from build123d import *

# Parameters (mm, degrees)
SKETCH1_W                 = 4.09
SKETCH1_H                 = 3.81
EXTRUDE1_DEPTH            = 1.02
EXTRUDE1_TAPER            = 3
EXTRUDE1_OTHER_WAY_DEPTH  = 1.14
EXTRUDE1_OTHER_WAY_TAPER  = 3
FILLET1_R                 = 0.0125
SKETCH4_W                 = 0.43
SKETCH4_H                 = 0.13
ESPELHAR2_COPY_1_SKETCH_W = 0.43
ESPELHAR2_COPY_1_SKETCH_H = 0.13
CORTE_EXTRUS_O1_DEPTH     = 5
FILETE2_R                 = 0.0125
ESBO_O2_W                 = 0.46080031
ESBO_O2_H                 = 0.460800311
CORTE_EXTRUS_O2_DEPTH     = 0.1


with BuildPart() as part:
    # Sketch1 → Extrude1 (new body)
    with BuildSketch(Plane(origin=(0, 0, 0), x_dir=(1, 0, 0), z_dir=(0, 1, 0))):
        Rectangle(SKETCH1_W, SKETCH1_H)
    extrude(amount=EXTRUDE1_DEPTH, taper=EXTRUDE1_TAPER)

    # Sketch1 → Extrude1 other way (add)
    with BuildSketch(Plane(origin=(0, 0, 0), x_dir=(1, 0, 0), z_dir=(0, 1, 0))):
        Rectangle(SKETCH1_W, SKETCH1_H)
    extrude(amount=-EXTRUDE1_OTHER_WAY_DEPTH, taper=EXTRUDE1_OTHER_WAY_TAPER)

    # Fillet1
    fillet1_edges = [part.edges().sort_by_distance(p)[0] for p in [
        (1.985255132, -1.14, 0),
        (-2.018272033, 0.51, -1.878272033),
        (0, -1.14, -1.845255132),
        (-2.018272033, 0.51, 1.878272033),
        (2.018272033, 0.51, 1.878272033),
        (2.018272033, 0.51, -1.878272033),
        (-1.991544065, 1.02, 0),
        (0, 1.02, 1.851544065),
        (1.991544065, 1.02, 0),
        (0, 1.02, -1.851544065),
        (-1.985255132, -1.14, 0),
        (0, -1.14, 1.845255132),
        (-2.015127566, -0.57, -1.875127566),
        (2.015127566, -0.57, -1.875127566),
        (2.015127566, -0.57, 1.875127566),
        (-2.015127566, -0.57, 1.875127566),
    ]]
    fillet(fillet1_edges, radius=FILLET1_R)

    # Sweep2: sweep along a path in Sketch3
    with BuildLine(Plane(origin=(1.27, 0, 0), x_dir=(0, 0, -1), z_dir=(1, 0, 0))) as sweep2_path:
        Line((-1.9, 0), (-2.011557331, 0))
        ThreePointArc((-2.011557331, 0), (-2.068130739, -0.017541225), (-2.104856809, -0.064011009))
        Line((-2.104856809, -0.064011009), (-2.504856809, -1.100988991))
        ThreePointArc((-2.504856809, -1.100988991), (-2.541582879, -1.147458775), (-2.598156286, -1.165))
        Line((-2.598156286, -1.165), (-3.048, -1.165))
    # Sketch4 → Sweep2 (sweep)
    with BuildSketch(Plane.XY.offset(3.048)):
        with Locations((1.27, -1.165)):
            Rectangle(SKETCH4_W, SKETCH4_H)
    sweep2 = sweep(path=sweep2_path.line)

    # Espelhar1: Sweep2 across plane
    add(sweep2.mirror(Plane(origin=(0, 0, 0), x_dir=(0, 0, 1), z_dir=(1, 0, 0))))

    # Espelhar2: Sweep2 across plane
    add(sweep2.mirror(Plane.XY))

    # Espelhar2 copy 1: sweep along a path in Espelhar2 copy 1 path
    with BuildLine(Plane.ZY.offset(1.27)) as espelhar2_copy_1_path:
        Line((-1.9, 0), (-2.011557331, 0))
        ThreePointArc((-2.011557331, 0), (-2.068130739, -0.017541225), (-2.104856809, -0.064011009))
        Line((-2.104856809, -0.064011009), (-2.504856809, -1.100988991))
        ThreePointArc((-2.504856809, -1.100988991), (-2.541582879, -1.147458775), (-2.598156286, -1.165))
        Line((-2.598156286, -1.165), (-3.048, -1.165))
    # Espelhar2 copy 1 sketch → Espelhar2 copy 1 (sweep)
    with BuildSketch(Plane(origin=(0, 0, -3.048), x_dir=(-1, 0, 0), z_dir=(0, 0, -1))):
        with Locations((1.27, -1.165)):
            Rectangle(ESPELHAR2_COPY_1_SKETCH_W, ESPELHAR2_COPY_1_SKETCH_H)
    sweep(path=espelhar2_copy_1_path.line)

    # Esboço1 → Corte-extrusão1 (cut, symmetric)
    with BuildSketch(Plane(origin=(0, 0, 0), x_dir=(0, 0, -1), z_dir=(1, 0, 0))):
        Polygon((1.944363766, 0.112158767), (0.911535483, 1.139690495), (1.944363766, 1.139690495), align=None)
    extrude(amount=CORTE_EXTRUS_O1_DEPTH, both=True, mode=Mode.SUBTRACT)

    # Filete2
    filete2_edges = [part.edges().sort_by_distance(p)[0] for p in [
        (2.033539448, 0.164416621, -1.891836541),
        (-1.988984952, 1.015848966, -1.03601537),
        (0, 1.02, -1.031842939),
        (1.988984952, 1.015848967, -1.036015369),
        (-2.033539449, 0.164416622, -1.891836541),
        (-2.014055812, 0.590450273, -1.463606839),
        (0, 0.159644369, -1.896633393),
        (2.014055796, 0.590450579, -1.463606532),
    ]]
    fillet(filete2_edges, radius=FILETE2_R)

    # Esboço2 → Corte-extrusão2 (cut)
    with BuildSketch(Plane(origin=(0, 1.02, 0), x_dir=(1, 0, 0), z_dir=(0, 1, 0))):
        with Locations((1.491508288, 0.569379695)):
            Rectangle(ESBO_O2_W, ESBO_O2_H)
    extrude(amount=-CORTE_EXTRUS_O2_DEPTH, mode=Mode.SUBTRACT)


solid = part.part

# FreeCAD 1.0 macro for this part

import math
import FreeCAD as App
import Part
import Sketcher
from FreeCAD import Vector
Q = App.Units.Quantity


def edges_at(feature, points):
    """Names of the edges that pass closest to the given points."""
    edges = feature.Shape.Edges
    near = lambda p: min(range(len(edges)), key=lambda i: edges[i].distToShape(Part.Vertex(*p))[0])
    return sorted({f"Edge{near(p) + 1}" for p in points})

doc = App.newDocument("Part")
body = doc.addObject("PartDesign::Body", "Body")

# Sketch on XZ plane
sketch1 = body.newObject("Sketcher::SketchObject", "Sketch")
sketch1.AttachmentSupport = (doc.getObject("XZ_Plane"), [""])
sketch1.MapMode = "FlatFace"
sketch1.addGeometry(Part.LineSegment(Vector(-2.045, -1.905, 0), Vector(-2.045, 1.905, 0)), False)
sketch1.addGeometry(Part.LineSegment(Vector(-2.045, 1.905, 0), Vector(2.045, 1.905, 0)), False)
sketch1.addGeometry(Part.LineSegment(Vector(2.045, 1.905, 0), Vector(2.045, -1.905, 0)), False)
sketch1.addGeometry(Part.LineSegment(Vector(2.045, -1.905, 0), Vector(-2.045, -1.905, 0)), False)
sketch1.addConstraint(Sketcher.Constraint("Coincident", 0, 2, 1, 1))
sketch1.addConstraint(Sketcher.Constraint("Coincident", 1, 2, 2, 1))
sketch1.addConstraint(Sketcher.Constraint("Coincident", 2, 2, 3, 1))
sketch1.addConstraint(Sketcher.Constraint("Coincident", 3, 2, 0, 1))
sketch1.addConstraint(Sketcher.Constraint("Vertical", 0))
sketch1.addConstraint(Sketcher.Constraint("Horizontal", 1))
sketch1.addConstraint(Sketcher.Constraint("Vertical", 2))
sketch1.addConstraint(Sketcher.Constraint("Horizontal", 3))
sketch1.addConstraint(Sketcher.Constraint("Symmetric", 0, 2, 2, 2, -1, 1))
sketch1.addConstraint(Sketcher.Constraint("DistanceX", 1, 1, 1, 2, Q("4.09 mm")))
sketch1.addConstraint(Sketcher.Constraint("DistanceY", 0, 1, 0, 2, Q("3.81 mm")))
pad1 = body.newObject("PartDesign::Pad", "Pad")
pad1.Profile = sketch1
pad1.Length = 1.02
pad1.Reversed = True
pad1.TaperAngle = -3

# Sketch on XZ plane
sketch2 = body.newObject("Sketcher::SketchObject", "Sketch001")
sketch2.AttachmentSupport = (doc.getObject("XZ_Plane"), [""])
sketch2.MapMode = "FlatFace"
sketch2.addGeometry(Part.LineSegment(Vector(-2.045, -1.905, 0), Vector(-2.045, 1.905, 0)), False)
sketch2.addGeometry(Part.LineSegment(Vector(-2.045, 1.905, 0), Vector(2.045, 1.905, 0)), False)
sketch2.addGeometry(Part.LineSegment(Vector(2.045, 1.905, 0), Vector(2.045, -1.905, 0)), False)
sketch2.addGeometry(Part.LineSegment(Vector(2.045, -1.905, 0), Vector(-2.045, -1.905, 0)), False)
sketch2.addConstraint(Sketcher.Constraint("Coincident", 0, 2, 1, 1))
sketch2.addConstraint(Sketcher.Constraint("Coincident", 1, 2, 2, 1))
sketch2.addConstraint(Sketcher.Constraint("Coincident", 2, 2, 3, 1))
sketch2.addConstraint(Sketcher.Constraint("Coincident", 3, 2, 0, 1))
sketch2.addConstraint(Sketcher.Constraint("Vertical", 0))
sketch2.addConstraint(Sketcher.Constraint("Horizontal", 1))
sketch2.addConstraint(Sketcher.Constraint("Vertical", 2))
sketch2.addConstraint(Sketcher.Constraint("Horizontal", 3))
sketch2.addConstraint(Sketcher.Constraint("Symmetric", 0, 2, 2, 2, -1, 1))
sketch2.addConstraint(Sketcher.Constraint("DistanceX", 1, 1, 1, 2, Q("4.09 mm")))
sketch2.addConstraint(Sketcher.Constraint("DistanceY", 0, 1, 0, 2, Q("3.81 mm")))
pad2 = body.newObject("PartDesign::Pad", "Pad001")
pad2.Profile = sketch2
pad2.Length = 1.14
pad2.TaperAngle = -3
doc.recompute()

fillet = body.newObject("PartDesign::Fillet", "Fillet")
fillet.Base = (pad2, ["Edge1"])
fillet.UseAllEdges = True
fillet.Radius = 0.0125

# Sketch on XY plane
sketch3 = body.newObject("Sketcher::SketchObject", "Sketch002")
sketch3.AttachmentSupport = (doc.getObject("XY_Plane"), [""])
sketch3.MapMode = "FlatFace"
sketch3.AttachmentOffset = App.Placement(Vector(0, 0, 3.048), App.Rotation())
sketch3.addGeometry(Part.LineSegment(Vector(1.055, -1.1, 0), Vector(1.055, -1.23, 0)), False)
sketch3.addGeometry(Part.LineSegment(Vector(1.055, -1.23, 0), Vector(1.485, -1.23, 0)), False)
sketch3.addGeometry(Part.LineSegment(Vector(1.485, -1.23, 0), Vector(1.485, -1.1, 0)), False)
sketch3.addGeometry(Part.LineSegment(Vector(1.485, -1.1, 0), Vector(1.055, -1.1, 0)), False)
sketch3.addConstraint(Sketcher.Constraint("Coincident", 0, 2, 1, 1))
sketch3.addConstraint(Sketcher.Constraint("Coincident", 1, 2, 2, 1))
sketch3.addConstraint(Sketcher.Constraint("Coincident", 2, 2, 3, 1))
sketch3.addConstraint(Sketcher.Constraint("Coincident", 3, 2, 0, 1))
sketch3.addConstraint(Sketcher.Constraint("Vertical", 0))
sketch3.addConstraint(Sketcher.Constraint("Horizontal", 1))
sketch3.addConstraint(Sketcher.Constraint("Vertical", 2))
sketch3.addConstraint(Sketcher.Constraint("Horizontal", 3))
sketch3.addConstraint(Sketcher.Constraint("DistanceX", 1, 1, 1, 2, Q("0.43 mm")))
sketch3.addConstraint(Sketcher.Constraint("DistanceY", 0, 2, 0, 1, Q("0.13 mm")))
sketch3.addConstraint(Sketcher.Constraint("DistanceY", 2, 2, -1, 1, Q("1.1 mm")))
sketch3.addConstraint(Sketcher.Constraint("DistanceX", -1, 1, 0, 2, Q("1.055 mm")))

# Sketch on YZ plane
sketch4 = body.newObject("Sketcher::SketchObject", "Sketch003")
sketch4.AttachmentSupport = (doc.getObject("YZ_Plane"), [""])
sketch4.MapMode = "FlatFace"
sketch4.AttachmentOffset = App.Placement(Vector(0, 0, 1.27), App.Rotation())
sketch4.addGeometry(Part.LineSegment(Vector(0, 1.9, 0), Vector(0, 2.011557, 0)), False)
sketch4.addGeometry(Part.ArcOfCircle(Part.Circle(Vector(-0.1, 2.011557, 0), Vector(0, 0, 1), 0.1), math.radians(-0.000001), math.radians(68.906565)), False)
sketch4.addGeometry(Part.LineSegment(Vector(-0.064011, 2.104857, 0), Vector(-1.100989, 2.504857, 0)), False)
sketch4.addGeometry(Part.ArcOfCircle(Part.Circle(Vector(-1.065, 2.598156, 0), Vector(0, 0, 1), 0.1), math.radians(180), math.radians(248.906565)), False)
sketch4.addGeometry(Part.LineSegment(Vector(-1.165, 2.598156, 0), Vector(-1.165, 3.048, 0)), False)
sketch4.addConstraint(Sketcher.Constraint("Tangent", 0, 2, 1, 1))
sketch4.addConstraint(Sketcher.Constraint("Tangent", 1, 2, 2, 1))
sketch4.addConstraint(Sketcher.Constraint("Tangent", 2, 2, 3, 2))
sketch4.addConstraint(Sketcher.Constraint("Tangent", 3, 1, 4, 1))
sketch4.addConstraint(Sketcher.Constraint("Vertical", 0))
sketch4.addConstraint(Sketcher.Constraint("Vertical", 4))
sketch4.addConstraint(Sketcher.Constraint("Equal", 1, 3))
sketch4.addConstraint(Sketcher.Constraint("PointOnObject", 0, 1, -2))
sketch4.addConstraint(Sketcher.Constraint("Radius", 1, Q("0.1 mm")))
sketch4.addConstraint(Sketcher.Constraint("DistanceY", -1, 1, 0, 1, Q("1.9 mm")))
sketch4.addConstraint(Sketcher.Constraint("DistanceY", 1, 2, 2, 2, Q("0.4 mm")))
sketch4.addConstraint(Sketcher.Constraint("DistanceX", 3, 3, -1, 1, Q("1.065 mm")))
sketch4.addConstraint(Sketcher.Constraint("DistanceY", -1, 1, 4, 2, Q("3.048 mm")))
sketch4.addConstraint(Sketcher.Constraint("DistanceY", 0, 1, 0, 2, Q("0.111557 mm")))
doc.recompute()

additivepipe = body.newObject("PartDesign::AdditivePipe", "AdditivePipe")
additivepipe.Profile = sketch3
additivepipe.Spine = (sketch4, ["Edge1", "Edge2", "Edge3", "Edge4", "Edge5"])
doc.recompute()

mirrored = body.newObject("PartDesign::Mirrored", "Mirrored")
mirrored.Originals = [additivepipe]
mirrored.MirrorPlane = (doc.getObject("YZ_Plane"), [""])
body.Tip = mirrored
doc.recompute()

mirrored2 = body.newObject("PartDesign::Mirrored", "Mirrored001")
mirrored2.Originals = [additivepipe]
mirrored2.MirrorPlane = (doc.getObject("XY_Plane"), [""])
body.Tip = mirrored2

# Sketch on XY plane
sketch5 = body.newObject("Sketcher::SketchObject", "Sketch004")
sketch5.AttachmentSupport = (doc.getObject("XY_Plane"), [""])
sketch5.MapMode = "FlatFace"
sketch5.AttachmentOffset = App.Placement(Vector(0, 0, -3.048), App.Rotation())
sketch5.addGeometry(Part.LineSegment(Vector(-1.055, -1.1, 0), Vector(-1.055, -1.23, 0)), False)
sketch5.addGeometry(Part.LineSegment(Vector(-1.055, -1.23, 0), Vector(-1.485, -1.23, 0)), False)
sketch5.addGeometry(Part.LineSegment(Vector(-1.485, -1.23, 0), Vector(-1.485, -1.1, 0)), False)
sketch5.addGeometry(Part.LineSegment(Vector(-1.485, -1.1, 0), Vector(-1.055, -1.1, 0)), False)
sketch5.addConstraint(Sketcher.Constraint("Coincident", 0, 2, 1, 1))
sketch5.addConstraint(Sketcher.Constraint("Coincident", 1, 2, 2, 1))
sketch5.addConstraint(Sketcher.Constraint("Coincident", 2, 2, 3, 1))
sketch5.addConstraint(Sketcher.Constraint("Coincident", 3, 2, 0, 1))
sketch5.addConstraint(Sketcher.Constraint("Vertical", 0))
sketch5.addConstraint(Sketcher.Constraint("Horizontal", 1))
sketch5.addConstraint(Sketcher.Constraint("Vertical", 2))
sketch5.addConstraint(Sketcher.Constraint("Horizontal", 3))
sketch5.addConstraint(Sketcher.Constraint("DistanceX", 1, 2, 1, 1, Q("0.43 mm")))
sketch5.addConstraint(Sketcher.Constraint("DistanceY", 0, 2, 0, 1, Q("0.13 mm")))
sketch5.addConstraint(Sketcher.Constraint("DistanceY", 2, 2, -1, 1, Q("1.1 mm")))
sketch5.addConstraint(Sketcher.Constraint("DistanceX", 0, 2, -1, 1, Q("1.055 mm")))

# Sketch on YZ plane
sketch6 = body.newObject("Sketcher::SketchObject", "Sketch005")
sketch6.AttachmentSupport = (doc.getObject("YZ_Plane"), [""])
sketch6.MapMode = "FlatFace"
sketch6.AttachmentOffset = App.Placement(Vector(0, 0, -1.27), App.Rotation())
sketch6.addGeometry(Part.LineSegment(Vector(0, -1.9, 0), Vector(0, -2.011557, 0)), False)
sketch6.addGeometry(Part.ArcOfCircle(Part.Circle(Vector(-0.1, -2.011557, 0), Vector(0, 0, 1), 0.1), math.radians(-68.906565), math.radians(0.000001)), False)
sketch6.addGeometry(Part.LineSegment(Vector(-0.064011, -2.104857, 0), Vector(-1.100989, -2.504857, 0)), False)
sketch6.addGeometry(Part.ArcOfCircle(Part.Circle(Vector(-1.065, -2.598156, 0), Vector(0, 0, 1), 0.1), math.radians(111.093435), math.radians(180)), False)
sketch6.addGeometry(Part.LineSegment(Vector(-1.165, -2.598156, 0), Vector(-1.165, -3.048, 0)), False)
sketch6.addConstraint(Sketcher.Constraint("Tangent", 0, 2, 1, 2))
sketch6.addConstraint(Sketcher.Constraint("Tangent", 1, 1, 2, 1))
sketch6.addConstraint(Sketcher.Constraint("Tangent", 2, 2, 3, 1))
sketch6.addConstraint(Sketcher.Constraint("Tangent", 3, 2, 4, 1))
sketch6.addConstraint(Sketcher.Constraint("Vertical", 0))
sketch6.addConstraint(Sketcher.Constraint("Vertical", 4))
sketch6.addConstraint(Sketcher.Constraint("Equal", 1, 3))
sketch6.addConstraint(Sketcher.Constraint("PointOnObject", 0, 1, -2))
sketch6.addConstraint(Sketcher.Constraint("Radius", 1, Q("0.1 mm")))
sketch6.addConstraint(Sketcher.Constraint("DistanceY", 0, 1, -1, 1, Q("1.9 mm")))
sketch6.addConstraint(Sketcher.Constraint("DistanceY", 2, 2, 1, 1, Q("0.4 mm")))
sketch6.addConstraint(Sketcher.Constraint("DistanceX", 3, 3, -1, 1, Q("1.065 mm")))
sketch6.addConstraint(Sketcher.Constraint("DistanceY", 4, 2, -1, 1, Q("3.048 mm")))
sketch6.addConstraint(Sketcher.Constraint("DistanceY", 0, 2, 0, 1, Q("0.111557 mm")))
doc.recompute()

additivepipe2 = body.newObject("PartDesign::AdditivePipe", "AdditivePipe001")
additivepipe2.Profile = sketch5
additivepipe2.Spine = (sketch6, ["Edge1", "Edge2", "Edge3", "Edge4", "Edge5"])

# Sketch on YZ plane
sketch7 = body.newObject("Sketcher::SketchObject", "Sketch006")
sketch7.AttachmentSupport = (doc.getObject("YZ_Plane"), [""])
sketch7.MapMode = "FlatFace"
sketch7.addGeometry(Part.LineSegment(Vector(1.13969, -0.911535, 0), Vector(0.112159, -1.944364, 0)), False)
sketch7.addGeometry(Part.LineSegment(Vector(0.112159, -1.944364, 0), Vector(1.13969, -1.944364, 0)), False)
sketch7.addGeometry(Part.LineSegment(Vector(1.13969, -1.944364, 0), Vector(1.13969, -0.911535, 0)), False)
sketch7.addConstraint(Sketcher.Constraint("Coincident", 0, 2, 1, 1))
sketch7.addConstraint(Sketcher.Constraint("Coincident", 1, 2, 2, 1))
sketch7.addConstraint(Sketcher.Constraint("Coincident", 2, 2, 0, 1))
sketch7.addConstraint(Sketcher.Constraint("Horizontal", 1))
sketch7.addConstraint(Sketcher.Constraint("Vertical", 2))
sketch7.addConstraint(Sketcher.Constraint("Distance", 0, Q("1.456899 mm")))
sketch7.addConstraint(Sketcher.Constraint("DistanceX", 1, 1, 1, 2, Q("1.027532 mm")))
sketch7.addConstraint(Sketcher.Constraint("DistanceX", -1, 1, 0, 2, Q("0.112159 mm")))
sketch7.addConstraint(Sketcher.Constraint("DistanceY", 0, 2, -1, 1, Q("1.944364 mm")))
pocket1 = body.newObject("PartDesign::Pocket", "Pocket")
pocket1.Profile = sketch7
pocket1.Length = 10
pocket1.Midplane = True
doc.recompute()

fillet2 = body.newObject("PartDesign::Fillet", "Fillet001")
fillet2.Base = (pocket1, edges_at(pocket1, [
    (2.034, 0.164, -1.892),
    (-1.989, 1.016, -1.036),
    (0, 1.02, -1.032),
    (1.989, 1.016, -1.036),
    (-2.034, 0.164, -1.892),
    (-2.014, 0.59, -1.464),
    (0, 0.16, -1.897),
    (2.014, 0.59, -1.464),
]))
fillet2.Radius = 0.0125

# Sketch on XZ plane
sketch8 = body.newObject("Sketcher::SketchObject", "Sketch007")
sketch8.AttachmentSupport = (doc.getObject("XZ_Plane"), [""])
sketch8.MapMode = "FlatFace"
sketch8.AttachmentOffset = App.Placement(Vector(0, 0, -1.02), App.Rotation())
sketch8.addGeometry(Part.LineSegment(Vector(1.261108, -0.79978, 0), Vector(1.261108, -0.33898, 0)), False)
sketch8.addGeometry(Part.LineSegment(Vector(1.261108, -0.33898, 0), Vector(1.721908, -0.33898, 0)), False)
sketch8.addGeometry(Part.LineSegment(Vector(1.721908, -0.33898, 0), Vector(1.721908, -0.79978, 0)), False)
sketch8.addGeometry(Part.LineSegment(Vector(1.721908, -0.79978, 0), Vector(1.261108, -0.79978, 0)), False)
sketch8.addConstraint(Sketcher.Constraint("Coincident", 0, 2, 1, 1))
sketch8.addConstraint(Sketcher.Constraint("Coincident", 1, 2, 2, 1))
sketch8.addConstraint(Sketcher.Constraint("Coincident", 2, 2, 3, 1))
sketch8.addConstraint(Sketcher.Constraint("Coincident", 3, 2, 0, 1))
sketch8.addConstraint(Sketcher.Constraint("Vertical", 0))
sketch8.addConstraint(Sketcher.Constraint("Horizontal", 1))
sketch8.addConstraint(Sketcher.Constraint("Vertical", 2))
sketch8.addConstraint(Sketcher.Constraint("Horizontal", 3))
sketch8.addConstraint(Sketcher.Constraint("Equal", 3, 0))
sketch8.addConstraint(Sketcher.Constraint("DistanceX", 1, 1, 1, 2, Q("0.4608 mm")))
sketch8.addConstraint(Sketcher.Constraint("DistanceX", -1, 1, 0, 2, Q("1.261108 mm")))
sketch8.addConstraint(Sketcher.Constraint("DistanceY", 0, 2, -1, 1, Q("0.33898 mm")))
pocket2 = body.newObject("PartDesign::Pocket", "Pocket001")
pocket2.Profile = sketch8
pocket2.Length = 0.1
pocket2.Reversed = True

doc.recompute()
